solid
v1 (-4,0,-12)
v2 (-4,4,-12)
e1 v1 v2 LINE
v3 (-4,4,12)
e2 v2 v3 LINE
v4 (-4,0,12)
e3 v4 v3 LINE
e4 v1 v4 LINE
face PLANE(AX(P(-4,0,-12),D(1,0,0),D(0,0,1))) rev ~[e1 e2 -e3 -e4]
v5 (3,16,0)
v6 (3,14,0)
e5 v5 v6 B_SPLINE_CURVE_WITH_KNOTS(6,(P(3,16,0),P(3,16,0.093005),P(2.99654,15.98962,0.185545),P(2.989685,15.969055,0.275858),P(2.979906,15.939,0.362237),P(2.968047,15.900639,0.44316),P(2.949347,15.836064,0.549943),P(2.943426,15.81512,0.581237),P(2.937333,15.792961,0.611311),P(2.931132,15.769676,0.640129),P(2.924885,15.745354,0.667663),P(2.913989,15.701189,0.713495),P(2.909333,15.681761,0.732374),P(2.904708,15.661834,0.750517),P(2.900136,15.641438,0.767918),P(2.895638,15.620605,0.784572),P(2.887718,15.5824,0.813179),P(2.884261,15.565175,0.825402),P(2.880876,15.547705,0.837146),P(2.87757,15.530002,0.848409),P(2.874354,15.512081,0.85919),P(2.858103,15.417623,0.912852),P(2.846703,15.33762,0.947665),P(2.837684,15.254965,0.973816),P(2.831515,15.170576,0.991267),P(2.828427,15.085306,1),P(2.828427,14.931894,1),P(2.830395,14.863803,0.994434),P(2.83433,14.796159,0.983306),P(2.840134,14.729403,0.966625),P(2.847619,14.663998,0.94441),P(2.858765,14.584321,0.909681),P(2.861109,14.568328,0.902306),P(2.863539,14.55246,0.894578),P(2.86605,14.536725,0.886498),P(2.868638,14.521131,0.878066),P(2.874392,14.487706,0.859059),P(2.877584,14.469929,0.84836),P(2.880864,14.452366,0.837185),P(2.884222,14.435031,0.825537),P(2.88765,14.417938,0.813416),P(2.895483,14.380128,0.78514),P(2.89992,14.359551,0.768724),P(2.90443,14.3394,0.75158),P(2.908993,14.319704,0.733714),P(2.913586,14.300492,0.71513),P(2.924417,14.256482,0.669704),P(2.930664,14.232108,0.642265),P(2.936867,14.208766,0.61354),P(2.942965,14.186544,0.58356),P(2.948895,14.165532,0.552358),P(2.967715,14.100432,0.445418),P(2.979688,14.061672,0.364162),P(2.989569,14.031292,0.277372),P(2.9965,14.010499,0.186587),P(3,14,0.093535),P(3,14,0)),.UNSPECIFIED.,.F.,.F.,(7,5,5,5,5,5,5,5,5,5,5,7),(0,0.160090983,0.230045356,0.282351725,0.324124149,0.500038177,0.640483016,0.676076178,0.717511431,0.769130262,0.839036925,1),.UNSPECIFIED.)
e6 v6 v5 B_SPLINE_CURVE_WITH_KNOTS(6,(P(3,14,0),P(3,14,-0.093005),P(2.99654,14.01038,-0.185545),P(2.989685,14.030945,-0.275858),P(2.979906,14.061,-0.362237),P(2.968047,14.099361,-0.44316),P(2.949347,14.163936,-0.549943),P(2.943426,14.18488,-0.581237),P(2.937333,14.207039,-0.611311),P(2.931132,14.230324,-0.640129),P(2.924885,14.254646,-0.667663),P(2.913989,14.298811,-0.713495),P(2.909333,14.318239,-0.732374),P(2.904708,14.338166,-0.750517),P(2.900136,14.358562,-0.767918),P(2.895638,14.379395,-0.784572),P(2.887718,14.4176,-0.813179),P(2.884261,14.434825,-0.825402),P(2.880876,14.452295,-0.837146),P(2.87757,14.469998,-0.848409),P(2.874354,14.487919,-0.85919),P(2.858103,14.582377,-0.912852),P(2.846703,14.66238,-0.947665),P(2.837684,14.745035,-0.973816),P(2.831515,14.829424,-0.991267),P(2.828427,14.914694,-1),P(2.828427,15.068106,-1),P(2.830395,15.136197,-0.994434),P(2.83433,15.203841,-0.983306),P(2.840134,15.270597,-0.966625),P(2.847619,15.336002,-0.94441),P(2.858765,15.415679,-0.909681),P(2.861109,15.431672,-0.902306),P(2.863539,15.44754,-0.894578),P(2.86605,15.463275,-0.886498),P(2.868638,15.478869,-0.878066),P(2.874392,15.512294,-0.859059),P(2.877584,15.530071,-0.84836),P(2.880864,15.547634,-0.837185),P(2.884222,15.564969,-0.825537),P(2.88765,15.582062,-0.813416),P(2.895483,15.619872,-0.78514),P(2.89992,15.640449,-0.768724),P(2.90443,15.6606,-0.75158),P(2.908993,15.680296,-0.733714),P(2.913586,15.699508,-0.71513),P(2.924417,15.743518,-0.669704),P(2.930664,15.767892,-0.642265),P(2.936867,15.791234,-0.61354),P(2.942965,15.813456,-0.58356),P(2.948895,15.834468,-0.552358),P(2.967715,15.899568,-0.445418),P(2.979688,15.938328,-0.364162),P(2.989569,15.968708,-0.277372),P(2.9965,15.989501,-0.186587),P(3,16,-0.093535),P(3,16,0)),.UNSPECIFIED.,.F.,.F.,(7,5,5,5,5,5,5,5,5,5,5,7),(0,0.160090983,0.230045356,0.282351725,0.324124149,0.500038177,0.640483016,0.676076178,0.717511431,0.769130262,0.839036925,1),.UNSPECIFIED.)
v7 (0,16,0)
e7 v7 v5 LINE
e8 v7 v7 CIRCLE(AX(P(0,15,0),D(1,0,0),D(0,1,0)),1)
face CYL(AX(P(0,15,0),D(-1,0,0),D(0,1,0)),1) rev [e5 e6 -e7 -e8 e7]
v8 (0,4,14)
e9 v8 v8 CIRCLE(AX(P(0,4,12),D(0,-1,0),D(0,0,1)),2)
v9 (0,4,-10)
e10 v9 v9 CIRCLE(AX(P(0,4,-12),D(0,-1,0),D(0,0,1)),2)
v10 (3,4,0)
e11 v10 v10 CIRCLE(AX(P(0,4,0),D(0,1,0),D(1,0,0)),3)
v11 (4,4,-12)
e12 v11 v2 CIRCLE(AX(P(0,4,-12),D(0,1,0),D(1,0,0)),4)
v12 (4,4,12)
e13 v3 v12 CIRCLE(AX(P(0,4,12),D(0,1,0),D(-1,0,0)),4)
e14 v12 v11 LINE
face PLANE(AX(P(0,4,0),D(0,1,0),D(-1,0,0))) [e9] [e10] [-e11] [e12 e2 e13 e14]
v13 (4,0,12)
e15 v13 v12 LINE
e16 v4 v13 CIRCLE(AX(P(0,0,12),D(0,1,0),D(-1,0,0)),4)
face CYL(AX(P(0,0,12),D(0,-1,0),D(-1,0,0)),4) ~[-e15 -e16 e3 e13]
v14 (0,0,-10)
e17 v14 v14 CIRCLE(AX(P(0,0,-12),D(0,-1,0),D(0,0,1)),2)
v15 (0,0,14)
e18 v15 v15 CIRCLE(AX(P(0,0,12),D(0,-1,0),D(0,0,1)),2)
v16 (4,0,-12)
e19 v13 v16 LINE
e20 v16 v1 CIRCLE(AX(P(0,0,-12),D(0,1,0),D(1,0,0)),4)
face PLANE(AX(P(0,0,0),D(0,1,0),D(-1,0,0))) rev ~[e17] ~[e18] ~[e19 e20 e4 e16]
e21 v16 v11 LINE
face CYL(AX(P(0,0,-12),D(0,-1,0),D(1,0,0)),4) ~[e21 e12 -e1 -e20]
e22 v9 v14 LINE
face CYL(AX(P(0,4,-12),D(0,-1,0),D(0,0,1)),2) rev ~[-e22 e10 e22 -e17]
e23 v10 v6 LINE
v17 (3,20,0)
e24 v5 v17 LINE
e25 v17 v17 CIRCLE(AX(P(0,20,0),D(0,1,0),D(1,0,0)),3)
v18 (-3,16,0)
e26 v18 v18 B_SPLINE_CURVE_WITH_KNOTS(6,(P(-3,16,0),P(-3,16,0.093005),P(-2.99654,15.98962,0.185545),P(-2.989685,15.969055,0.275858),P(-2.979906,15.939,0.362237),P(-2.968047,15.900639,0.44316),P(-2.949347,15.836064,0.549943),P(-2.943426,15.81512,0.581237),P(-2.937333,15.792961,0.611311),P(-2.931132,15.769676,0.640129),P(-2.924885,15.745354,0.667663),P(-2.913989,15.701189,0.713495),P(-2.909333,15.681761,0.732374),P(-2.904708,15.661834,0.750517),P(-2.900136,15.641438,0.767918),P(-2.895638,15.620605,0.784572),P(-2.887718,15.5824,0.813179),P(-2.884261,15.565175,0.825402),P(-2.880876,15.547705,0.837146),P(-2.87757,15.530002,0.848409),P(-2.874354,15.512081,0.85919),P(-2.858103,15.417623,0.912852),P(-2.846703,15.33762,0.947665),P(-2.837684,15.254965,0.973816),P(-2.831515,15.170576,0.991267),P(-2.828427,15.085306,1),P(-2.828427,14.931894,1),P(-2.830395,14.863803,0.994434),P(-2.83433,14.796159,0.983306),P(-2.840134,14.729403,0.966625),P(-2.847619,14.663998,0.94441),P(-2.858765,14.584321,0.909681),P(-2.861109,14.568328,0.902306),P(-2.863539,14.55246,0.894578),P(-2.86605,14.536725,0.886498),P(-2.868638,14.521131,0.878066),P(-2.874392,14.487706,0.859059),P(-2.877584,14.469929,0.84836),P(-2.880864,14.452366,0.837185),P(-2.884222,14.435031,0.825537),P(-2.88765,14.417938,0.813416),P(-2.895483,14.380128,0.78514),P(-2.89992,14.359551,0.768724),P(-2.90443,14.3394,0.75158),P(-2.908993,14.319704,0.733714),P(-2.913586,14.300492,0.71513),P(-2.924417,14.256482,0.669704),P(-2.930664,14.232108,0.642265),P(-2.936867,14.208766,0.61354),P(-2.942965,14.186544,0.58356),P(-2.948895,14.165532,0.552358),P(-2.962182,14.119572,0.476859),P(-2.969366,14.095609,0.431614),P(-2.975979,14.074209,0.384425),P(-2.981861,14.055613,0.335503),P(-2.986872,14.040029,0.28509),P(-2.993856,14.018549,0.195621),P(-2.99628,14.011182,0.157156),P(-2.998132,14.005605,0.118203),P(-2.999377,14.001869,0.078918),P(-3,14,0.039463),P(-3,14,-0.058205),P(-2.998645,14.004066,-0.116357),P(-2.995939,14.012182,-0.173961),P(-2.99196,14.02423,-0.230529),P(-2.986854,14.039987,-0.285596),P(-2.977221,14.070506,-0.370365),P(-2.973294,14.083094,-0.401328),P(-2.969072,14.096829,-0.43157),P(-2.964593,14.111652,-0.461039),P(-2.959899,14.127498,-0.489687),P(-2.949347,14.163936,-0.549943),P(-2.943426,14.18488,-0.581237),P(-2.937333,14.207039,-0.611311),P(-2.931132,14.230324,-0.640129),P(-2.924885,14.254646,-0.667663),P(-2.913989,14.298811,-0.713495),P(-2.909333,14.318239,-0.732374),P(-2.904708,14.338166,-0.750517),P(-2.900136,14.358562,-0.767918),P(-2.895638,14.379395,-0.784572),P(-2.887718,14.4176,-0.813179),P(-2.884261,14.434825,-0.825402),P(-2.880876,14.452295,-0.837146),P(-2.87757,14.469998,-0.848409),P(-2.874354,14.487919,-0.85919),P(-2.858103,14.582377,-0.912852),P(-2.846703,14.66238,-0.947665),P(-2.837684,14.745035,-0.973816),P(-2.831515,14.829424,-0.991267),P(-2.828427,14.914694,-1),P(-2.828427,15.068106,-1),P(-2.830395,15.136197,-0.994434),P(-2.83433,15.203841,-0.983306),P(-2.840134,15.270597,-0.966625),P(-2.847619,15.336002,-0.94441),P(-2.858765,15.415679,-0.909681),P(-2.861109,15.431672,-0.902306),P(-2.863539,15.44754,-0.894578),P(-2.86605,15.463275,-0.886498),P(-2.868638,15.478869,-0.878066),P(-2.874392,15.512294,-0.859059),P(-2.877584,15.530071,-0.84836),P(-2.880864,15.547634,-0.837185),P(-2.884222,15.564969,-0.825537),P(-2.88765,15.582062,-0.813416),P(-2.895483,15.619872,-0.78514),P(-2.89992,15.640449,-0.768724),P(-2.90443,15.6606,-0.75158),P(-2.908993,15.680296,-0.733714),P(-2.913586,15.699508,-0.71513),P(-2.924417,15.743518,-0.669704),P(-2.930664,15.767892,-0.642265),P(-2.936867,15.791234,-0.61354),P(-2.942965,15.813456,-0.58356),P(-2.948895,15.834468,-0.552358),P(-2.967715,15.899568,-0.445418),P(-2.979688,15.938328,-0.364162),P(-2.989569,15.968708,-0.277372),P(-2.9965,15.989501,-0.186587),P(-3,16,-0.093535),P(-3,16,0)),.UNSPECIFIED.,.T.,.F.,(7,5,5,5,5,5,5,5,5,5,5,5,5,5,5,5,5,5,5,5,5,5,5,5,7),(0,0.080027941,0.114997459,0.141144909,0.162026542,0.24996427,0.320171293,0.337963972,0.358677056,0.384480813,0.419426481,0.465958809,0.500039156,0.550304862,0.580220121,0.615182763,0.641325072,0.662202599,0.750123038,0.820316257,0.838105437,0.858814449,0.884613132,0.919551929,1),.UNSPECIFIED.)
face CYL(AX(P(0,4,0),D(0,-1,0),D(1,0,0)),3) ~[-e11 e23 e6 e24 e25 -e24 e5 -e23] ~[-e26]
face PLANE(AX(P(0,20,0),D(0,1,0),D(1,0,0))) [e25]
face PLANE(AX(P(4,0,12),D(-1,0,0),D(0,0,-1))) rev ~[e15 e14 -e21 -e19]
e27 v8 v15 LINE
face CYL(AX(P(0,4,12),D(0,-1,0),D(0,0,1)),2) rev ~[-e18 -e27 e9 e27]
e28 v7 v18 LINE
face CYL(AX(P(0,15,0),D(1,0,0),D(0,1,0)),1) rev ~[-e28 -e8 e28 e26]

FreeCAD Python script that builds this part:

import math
import FreeCAD as App
import Part
import Sketcher
from FreeCAD import Vector

doc = App.newDocument("Part")
body = doc.addObject("PartDesign::Body", "Body")

# Sketch on XZ plane
sketch1 = body.newObject("Sketcher::SketchObject", "Sketch")
sketch1.AttachmentSupport = (doc.getObject("XZ_Plane"), [""])
sketch1.MapMode = "FlatFace"
sketch1.addGeometry(Part.ArcOfCircle(Part.Circle(Vector(0, 12, 0), Vector(0, 0, 1), 4), math.radians(0), math.radians(180)), False)
sketch1.addGeometry(Part.LineSegment(Vector(4, 12, 0), Vector(4, -12, 0)), False)
sketch1.addGeometry(Part.ArcOfCircle(Part.Circle(Vector(0, -12, 0), Vector(0, 0, 1), 4), math.radians(180), math.radians(360)), False)
sketch1.addGeometry(Part.LineSegment(Vector(-4, -12, 0), Vector(-4, 12, 0)), False)
sketch1.addConstraint(Sketcher.Constraint("Tangent", 0, 1, 1, 1))
sketch1.addConstraint(Sketcher.Constraint("Tangent", 1, 2, 2, 2))
sketch1.addConstraint(Sketcher.Constraint("Tangent", 2, 1, 3, 1))
sketch1.addConstraint(Sketcher.Constraint("Tangent", 3, 2, 0, 2))
sketch1.addConstraint(Sketcher.Constraint("Vertical", 1))
sketch1.addConstraint(Sketcher.Constraint("Vertical", 3))
sketch1.addConstraint(Sketcher.Constraint("Symmetric", 0, 3, 2, 3, -1, 1))
sketch1.addConstraint(Sketcher.Constraint("Radius", 0, 4.0))
sketch1.addConstraint(Sketcher.Constraint("DistanceY", 1, 2, 1, 1, 24.0))
pad1 = body.newObject("PartDesign::Pad", "Pad")
pad1.Profile = sketch1
pad1.Length = 4
pad1.Reversed = True

# Sketch on XZ plane
sketch2 = body.newObject("Sketcher::SketchObject", "Sketch001")
sketch2.AttachmentSupport = (doc.getObject("XZ_Plane"), [""])
sketch2.MapMode = "FlatFace"
sketch2.AttachmentOffset = App.Placement(Vector(0, 0, -4), App.Rotation())
sketch2.addGeometry(Part.Circle(Vector(0, 0, 0), Vector(0, 0, 1), 3), False)
sketch2.addConstraint(Sketcher.Constraint("Coincident", 0, 3, -1, 1))
sketch2.addConstraint(Sketcher.Constraint("Diameter", 0, 6.0))
pad2 = body.newObject("PartDesign::Pad", "Pad001")
pad2.Profile = sketch2
pad2.Length = 16
pad2.Reversed = True

# Sketch on YZ plane
sketch3 = body.newObject("Sketcher::SketchObject", "Sketch002")
sketch3.AttachmentSupport = (doc.getObject("YZ_Plane"), [""])
sketch3.MapMode = "FlatFace"
sketch3.addGeometry(Part.Circle(Vector(15, 0, 0), Vector(0, 0, 1), 1), False)
sketch3.addConstraint(Sketcher.Constraint("PointOnObject", 0, 3, -1))
sketch3.addConstraint(Sketcher.Constraint("Diameter", 0, 2.0))
sketch3.addConstraint(Sketcher.Constraint("DistanceX", -1, 1, 0, 3, 15.0))
pocket1 = body.newObject("PartDesign::Pocket", "Pocket")
pocket1.Profile = sketch3
pocket1.Length = 16
pocket1.Midplane = True

# Sketch on XZ plane
sketch4 = body.newObject("Sketcher::SketchObject", "Sketch003")
sketch4.AttachmentSupport = (doc.getObject("XZ_Plane"), [""])
sketch4.MapMode = "FlatFace"
sketch4.AttachmentOffset = App.Placement(Vector(0, 0, -4), App.Rotation())
sketch4.addGeometry(Part.Circle(Vector(0, 12, 0), Vector(0, 0, 1), 2), False)
sketch4.addGeometry(Part.Circle(Vector(0, -12, 0), Vector(0, 0, 1), 2), False)
sketch4.addConstraint(Sketcher.Constraint("Equal", 0, 1))
sketch4.addConstraint(Sketcher.Constraint("Symmetric", 0, 3, 1, 3, -1, 1))
sketch4.addConstraint(Sketcher.Constraint("PointOnObject", 0, 3, -2))
sketch4.addConstraint(Sketcher.Constraint("Diameter", 0, 4.0))
sketch4.addConstraint(Sketcher.Constraint("DistanceY", -1, 1, 0, 3, 12.0))
doc.recompute()
hole = body.newObject("PartDesign::Hole", "Hole")
hole.Profile = sketch4
hole.ThreadType = "None"
hole.Diameter = 4
hole.DepthType = "ThroughAll"
hole.Reversed = True

doc.recompute()
